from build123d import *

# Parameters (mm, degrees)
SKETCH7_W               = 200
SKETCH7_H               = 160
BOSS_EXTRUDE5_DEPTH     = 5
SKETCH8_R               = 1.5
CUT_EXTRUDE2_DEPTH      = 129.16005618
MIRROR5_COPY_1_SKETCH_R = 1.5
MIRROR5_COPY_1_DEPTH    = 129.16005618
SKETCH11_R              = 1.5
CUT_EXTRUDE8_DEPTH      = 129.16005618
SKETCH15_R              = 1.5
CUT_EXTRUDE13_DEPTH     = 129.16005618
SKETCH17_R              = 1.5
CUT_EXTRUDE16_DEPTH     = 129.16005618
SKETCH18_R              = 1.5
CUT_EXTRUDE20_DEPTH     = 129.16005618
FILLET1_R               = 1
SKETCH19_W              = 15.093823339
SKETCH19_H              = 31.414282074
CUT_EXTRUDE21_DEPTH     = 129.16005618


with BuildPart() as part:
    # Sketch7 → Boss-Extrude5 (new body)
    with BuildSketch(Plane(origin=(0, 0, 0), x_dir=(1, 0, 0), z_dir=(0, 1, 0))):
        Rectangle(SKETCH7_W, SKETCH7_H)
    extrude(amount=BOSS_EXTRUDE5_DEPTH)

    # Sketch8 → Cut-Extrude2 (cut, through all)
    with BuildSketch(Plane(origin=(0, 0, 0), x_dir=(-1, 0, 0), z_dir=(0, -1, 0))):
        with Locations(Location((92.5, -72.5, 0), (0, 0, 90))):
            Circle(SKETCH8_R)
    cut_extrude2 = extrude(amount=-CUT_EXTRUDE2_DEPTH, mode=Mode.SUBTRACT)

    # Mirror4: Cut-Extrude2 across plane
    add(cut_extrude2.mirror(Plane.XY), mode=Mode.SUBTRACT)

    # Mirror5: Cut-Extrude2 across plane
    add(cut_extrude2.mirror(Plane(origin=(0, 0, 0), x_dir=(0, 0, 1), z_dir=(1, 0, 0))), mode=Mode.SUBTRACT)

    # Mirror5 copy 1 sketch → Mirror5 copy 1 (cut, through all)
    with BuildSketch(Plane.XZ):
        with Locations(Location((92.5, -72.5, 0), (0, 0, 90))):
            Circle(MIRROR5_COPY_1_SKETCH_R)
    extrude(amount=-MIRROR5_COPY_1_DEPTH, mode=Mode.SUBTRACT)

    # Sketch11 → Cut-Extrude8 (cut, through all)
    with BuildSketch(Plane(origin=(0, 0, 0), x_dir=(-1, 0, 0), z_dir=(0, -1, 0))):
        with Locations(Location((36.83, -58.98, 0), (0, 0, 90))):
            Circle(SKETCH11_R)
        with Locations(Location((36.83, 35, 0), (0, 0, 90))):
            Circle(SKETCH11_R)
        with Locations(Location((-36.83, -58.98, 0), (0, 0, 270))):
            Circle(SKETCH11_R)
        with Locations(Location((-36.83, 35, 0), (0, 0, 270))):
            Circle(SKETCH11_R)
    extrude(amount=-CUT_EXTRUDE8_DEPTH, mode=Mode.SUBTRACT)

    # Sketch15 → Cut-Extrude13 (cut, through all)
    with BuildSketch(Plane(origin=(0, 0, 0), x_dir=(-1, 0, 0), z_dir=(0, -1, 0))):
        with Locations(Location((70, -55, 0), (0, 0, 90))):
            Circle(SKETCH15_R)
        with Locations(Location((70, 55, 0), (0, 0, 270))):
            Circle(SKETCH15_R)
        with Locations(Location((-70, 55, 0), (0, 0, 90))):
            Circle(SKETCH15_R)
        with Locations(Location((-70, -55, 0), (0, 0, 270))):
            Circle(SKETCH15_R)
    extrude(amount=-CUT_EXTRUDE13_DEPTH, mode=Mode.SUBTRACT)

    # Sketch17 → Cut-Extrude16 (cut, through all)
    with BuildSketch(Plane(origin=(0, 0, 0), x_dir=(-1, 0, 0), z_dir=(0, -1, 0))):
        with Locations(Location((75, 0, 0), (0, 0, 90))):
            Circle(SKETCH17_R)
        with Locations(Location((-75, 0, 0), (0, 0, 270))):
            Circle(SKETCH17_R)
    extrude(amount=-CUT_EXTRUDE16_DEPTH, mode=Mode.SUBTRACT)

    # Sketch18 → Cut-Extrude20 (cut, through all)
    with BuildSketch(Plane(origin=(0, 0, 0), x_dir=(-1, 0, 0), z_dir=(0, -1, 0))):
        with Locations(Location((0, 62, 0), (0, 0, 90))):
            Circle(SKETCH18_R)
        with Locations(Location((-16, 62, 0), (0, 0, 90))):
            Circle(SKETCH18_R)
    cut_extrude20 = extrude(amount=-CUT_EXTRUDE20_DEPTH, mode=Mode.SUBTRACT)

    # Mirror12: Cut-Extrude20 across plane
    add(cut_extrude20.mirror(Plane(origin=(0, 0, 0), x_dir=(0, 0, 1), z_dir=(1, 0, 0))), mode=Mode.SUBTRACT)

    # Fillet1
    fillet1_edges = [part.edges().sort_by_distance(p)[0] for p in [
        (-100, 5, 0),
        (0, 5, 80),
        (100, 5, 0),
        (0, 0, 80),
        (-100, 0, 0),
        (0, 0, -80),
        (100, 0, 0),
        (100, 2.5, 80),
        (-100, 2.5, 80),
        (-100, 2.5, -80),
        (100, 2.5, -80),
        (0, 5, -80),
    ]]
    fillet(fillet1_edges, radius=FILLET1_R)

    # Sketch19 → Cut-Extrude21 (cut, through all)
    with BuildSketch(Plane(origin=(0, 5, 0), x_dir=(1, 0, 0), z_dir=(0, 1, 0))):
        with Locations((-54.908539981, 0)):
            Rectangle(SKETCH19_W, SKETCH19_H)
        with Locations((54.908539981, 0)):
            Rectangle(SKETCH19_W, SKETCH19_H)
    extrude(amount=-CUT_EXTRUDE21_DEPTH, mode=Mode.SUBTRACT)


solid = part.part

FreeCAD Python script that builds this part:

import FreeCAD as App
import Part
import Sketcher

V = App.Vector


def edges_at(feature, points):
    """Names of the edges that pass closest to the given points."""
    edges = feature.Shape.Edges
    near = lambda p: min(range(len(edges)), key=lambda i: edges[i].distToShape(Part.Vertex(*p))[0])
    return sorted({f"Edge{near(p) + 1}" for p in points})


def add_polygon(sketch, points):
    """Adds a closed chain of lines whose ends are joined by coincident constraints."""
    first, n = sketch.GeometryCount, len(points)
    for a, b in zip(points, points[1:] + points[:1]):
        sketch.addGeometry(Part.LineSegment(App.Vector(*a, 0), App.Vector(*b, 0)), False)
    for i in range(n):
        sketch.addConstraint(Sketcher.Constraint("Coincident", first + i, 2, first + (i + 1) % n, 1))

doc = App.newDocument("Part")
body = doc.addObject("PartDesign::Body", "Body")

sketch1 = body.newObject("Sketcher::SketchObject", "Sketch")
sketch1.AttachmentSupport = (doc.getObject("XZ_Plane"), [""])
sketch1.MapMode = "FlatFace"
add_polygon(sketch1, [(-100, -80), (-100, 80), (100, 80), (100, -80)])
sketch1.addConstraint([
    Sketcher.Constraint("Vertical", 0),
    Sketcher.Constraint("Horizontal", 1),
    Sketcher.Constraint("Vertical", 2),
    Sketcher.Constraint("Horizontal", 3),
    Sketcher.Constraint("Symmetric", 0, 2, 2, 2, -1, 1),
    Sketcher.Constraint("DistanceX", 1, 1, 1, 2, 200.0),
    Sketcher.Constraint("DistanceY", 0, 1, 0, 2, 160.0),
])
pad1 = body.newObject("PartDesign::Pad", "Pad")
pad1.Profile = sketch1
pad1.Length = 5
pad1.Reversed = True

sketch2 = body.newObject("Sketcher::SketchObject", "Sketch001")
sketch2.AttachmentSupport = (doc.getObject("XZ_Plane"), [""])
sketch2.MapMode = "FlatFace"
sketch2.addGeometry(Part.Circle(V(-92.5, 72.5, 0), V(0, 0, 1), 1.5), False)
sketch2.addConstraint([
    Sketcher.Constraint("Diameter", 0, 3.0),
    Sketcher.Constraint("DistanceX", 0, 3, -1, 1, 92.5),
    Sketcher.Constraint("DistanceY", -1, 1, 0, 3, 72.5),
])
pocket1 = body.newObject("PartDesign::Pocket", "Pocket")
pocket1.Profile = sketch2
pocket1.Type = "ThroughAll"
doc.recompute()

mirrored = body.newObject("PartDesign::Mirrored", "Mirrored")
mirrored.Originals = [pocket1]
mirrored.MirrorPlane = (doc.getObject("XY_Plane"), [""])
body.Tip = mirrored
doc.recompute()

mirrored2 = body.newObject("PartDesign::Mirrored", "Mirrored001")
mirrored2.Originals = [pocket1]
mirrored2.MirrorPlane = (doc.getObject("YZ_Plane"), [""])
body.Tip = mirrored2

sketch3 = body.newObject("Sketcher::SketchObject", "Sketch002")
sketch3.AttachmentSupport = (doc.getObject("XZ_Plane"), [""])
sketch3.MapMode = "FlatFace"
sketch3.addGeometry(Part.Circle(V(92.5, -72.5, 0), V(0, 0, 1), 1.5), False)
sketch3.addConstraint([
    Sketcher.Constraint("Diameter", 0, 3.0),
    Sketcher.Constraint("DistanceX", -1, 1, 0, 3, 92.5),
    Sketcher.Constraint("DistanceY", 0, 3, -1, 1, 72.5),
])
pocket2 = body.newObject("PartDesign::Pocket", "Pocket001")
pocket2.Profile = sketch3
pocket2.Type = "ThroughAll"

sketch4 = body.newObject("Sketcher::SketchObject", "Sketch003")
sketch4.AttachmentSupport = (doc.getObject("XZ_Plane"), [""])
sketch4.MapMode = "FlatFace"
sketch4.addGeometry([
    Part.Circle(V(-36.83, 58.98, 0), V(0, 0, 1), 1.5),
    Part.Circle(V(-36.83, -35, 0), V(0, 0, 1), 1.5),
    Part.Circle(V(36.83, 58.98, 0), V(0, 0, 1), 1.5),
    Part.Circle(V(36.83, -35, 0), V(0, 0, 1), 1.5),
], False)
sketch4.addConstraint([
    Sketcher.Constraint("Equal", 0, 1),
    Sketcher.Constraint("Equal", 1, 2),
    Sketcher.Constraint("Equal", 2, 3),
    Sketcher.Constraint("Symmetric", 0, 3, 2, 3, -2),
    Sketcher.Constraint("Symmetric", 1, 3, 3, 3, -2),
    Sketcher.Constraint("Vertical", 0, 3, 1, 3),
    Sketcher.Constraint("Diameter", 0, 3.0),
    Sketcher.Constraint("DistanceY", 1, 3, -1, 1, 35.0),
    Sketcher.Constraint("DistanceX", 0, 3, -1, 1, 36.83),
    Sketcher.Constraint("DistanceY", -1, 1, 0, 3, 58.98),
])
pocket3 = body.newObject("PartDesign::Pocket", "Pocket002")
pocket3.Profile = sketch4
pocket3.Type = "ThroughAll"

sketch5 = body.newObject("Sketcher::SketchObject", "Sketch004")
sketch5.AttachmentSupport = (doc.getObject("XZ_Plane"), [""])
sketch5.MapMode = "FlatFace"
sketch5.addGeometry([
    Part.Circle(V(-70, 55, 0), V(0, 0, 1), 1.5),
    Part.Circle(V(-70, -55, 0), V(0, 0, 1), 1.5),
    Part.Circle(V(70, -55, 0), V(0, 0, 1), 1.5),
    Part.Circle(V(70, 55, 0), V(0, 0, 1), 1.5),
], False)
sketch5.addConstraint([
    Sketcher.Constraint("Equal", 0, 1),
    Sketcher.Constraint("Equal", 1, 2),
    Sketcher.Constraint("Equal", 2, 3),
    Sketcher.Constraint("Symmetric", 0, 3, 2, 3, -1, 1),
    Sketcher.Constraint("Symmetric", 1, 3, 3, 3, -1, 1),
    Sketcher.Constraint("Symmetric", 1, 3, 2, 3, -2),
    Sketcher.Constraint("Diameter", 0, 3.0),
    Sketcher.Constraint("DistanceX", 0, 3, -1, 1, 70.0),
    Sketcher.Constraint("DistanceY", -1, 1, 0, 3, 55.0),
])
pocket4 = body.newObject("PartDesign::Pocket", "Pocket003")
pocket4.Profile = sketch5
pocket4.Type = "ThroughAll"

sketch6 = body.newObject("Sketcher::SketchObject", "Sketch005")
sketch6.AttachmentSupport = (doc.getObject("XZ_Plane"), [""])
sketch6.MapMode = "FlatFace"
sketch6.addGeometry([
    Part.Circle(V(-75, 0, 0), V(0, 0, 1), 1.5),
    Part.Circle(V(75, 0, 0), V(0, 0, 1), 1.5),
], False)
sketch6.addConstraint([
    Sketcher.Constraint("Equal", 0, 1),
    Sketcher.Constraint("Symmetric", 0, 3, 1, 3, -1, 1),
    Sketcher.Constraint("PointOnObject", 0, 3, -1),
    Sketcher.Constraint("Diameter", 0, 3.0),
    Sketcher.Constraint("DistanceX", 0, 3, -1, 1, 75.0),
])
pocket5 = body.newObject("PartDesign::Pocket", "Pocket004")
pocket5.Profile = sketch6
pocket5.Type = "ThroughAll"

sketch7 = body.newObject("Sketcher::SketchObject", "Sketch006")
sketch7.AttachmentSupport = (doc.getObject("XZ_Plane"), [""])
sketch7.MapMode = "FlatFace"
sketch7.addGeometry([
    Part.Circle(V(0, -62, 0), V(0, 0, 1), 1.5),
    Part.Circle(V(16, -62, 0), V(0, 0, 1), 1.5),
], False)
sketch7.addConstraint([
    Sketcher.Constraint("Equal", 0, 1),
    Sketcher.Constraint("PointOnObject", 0, 3, -2),
    Sketcher.Constraint("Horizontal", 0, 3, 1, 3),
    Sketcher.Constraint("Diameter", 0, 3.0),
    Sketcher.Constraint("DistanceY", 0, 3, -1, 1, 62.0),
    Sketcher.Constraint("DistanceX", -1, 1, 1, 3, 16.0),
])
pocket6 = body.newObject("PartDesign::Pocket", "Pocket005")
pocket6.Profile = sketch7
pocket6.Type = "ThroughAll"
doc.recompute()

mirrored3 = body.newObject("PartDesign::Mirrored", "Mirrored002")
mirrored3.Originals = [pocket6]
mirrored3.MirrorPlane = (doc.getObject("YZ_Plane"), [""])
body.Tip = mirrored3
doc.recompute()

fillet = body.newObject("PartDesign::Fillet", "Fillet")
fillet.Base = (mirrored3, edges_at(mirrored3, [
    (-100, 5, 0),
    (0, 5, 80),
    (100, 5, 0),
    (0, 0, 80),
    (-100, 0, 0),
    (0, 0, -80),
    (100, 0, 0),
    (100, 2.5, 80),
    (-100, 2.5, 80),
    (-100, 2.5, -80),
    (100, 2.5, -80),
    (0, 5, -80),
]))
fillet.Radius = 1

sketch8 = body.newObject("Sketcher::SketchObject", "Sketch007")
sketch8.AttachmentSupport = (doc.getObject("XZ_Plane"), [""])
sketch8.MapMode = "FlatFace"
sketch8.AttachmentOffset = App.Placement(V(0, 0, -5), App.Rotation())
add_polygon(sketch8, [(-62.455452, -15.707141), (-62.455452, 15.707141), (-47.361628, 15.707141), (-47.361628, -15.707141)])
add_polygon(sketch8, [(47.361628, -15.707141), (47.361628, 15.707141), (62.455452, 15.707141), (62.455452, -15.707141)])
sketch8.addConstraint([
    Sketcher.Constraint("Vertical", 0),
    Sketcher.Constraint("Horizontal", 1),
    Sketcher.Constraint("Vertical", 2),
    Sketcher.Constraint("Horizontal", 3),
    Sketcher.Constraint("Vertical", 4),
    Sketcher.Constraint("Horizontal", 5),
    Sketcher.Constraint("Vertical", 6),
    Sketcher.Constraint("Horizontal", 7),
    Sketcher.Constraint("Symmetric", 2, 2, 4, 2, -1, 1),
    Sketcher.Constraint("Symmetric", 0, 2, 6, 2, -1, 1),
    Sketcher.Constraint("Horizontal", 1, 2, 4, 2),
    Sketcher.Constraint("DistanceX", 1, 1, 1, 2, 15.093823),
    Sketcher.Constraint("DistanceY", 0, 1, 0, 2, 31.414282),
    Sketcher.Constraint("DistanceX", 0, 2, -1, 1, 62.455452),
])
pocket7 = body.newObject("PartDesign::Pocket", "Pocket006")
pocket7.Profile = sketch8
pocket7.Type = "ThroughAll"
pocket7.Reversed = True

doc.recompute()
